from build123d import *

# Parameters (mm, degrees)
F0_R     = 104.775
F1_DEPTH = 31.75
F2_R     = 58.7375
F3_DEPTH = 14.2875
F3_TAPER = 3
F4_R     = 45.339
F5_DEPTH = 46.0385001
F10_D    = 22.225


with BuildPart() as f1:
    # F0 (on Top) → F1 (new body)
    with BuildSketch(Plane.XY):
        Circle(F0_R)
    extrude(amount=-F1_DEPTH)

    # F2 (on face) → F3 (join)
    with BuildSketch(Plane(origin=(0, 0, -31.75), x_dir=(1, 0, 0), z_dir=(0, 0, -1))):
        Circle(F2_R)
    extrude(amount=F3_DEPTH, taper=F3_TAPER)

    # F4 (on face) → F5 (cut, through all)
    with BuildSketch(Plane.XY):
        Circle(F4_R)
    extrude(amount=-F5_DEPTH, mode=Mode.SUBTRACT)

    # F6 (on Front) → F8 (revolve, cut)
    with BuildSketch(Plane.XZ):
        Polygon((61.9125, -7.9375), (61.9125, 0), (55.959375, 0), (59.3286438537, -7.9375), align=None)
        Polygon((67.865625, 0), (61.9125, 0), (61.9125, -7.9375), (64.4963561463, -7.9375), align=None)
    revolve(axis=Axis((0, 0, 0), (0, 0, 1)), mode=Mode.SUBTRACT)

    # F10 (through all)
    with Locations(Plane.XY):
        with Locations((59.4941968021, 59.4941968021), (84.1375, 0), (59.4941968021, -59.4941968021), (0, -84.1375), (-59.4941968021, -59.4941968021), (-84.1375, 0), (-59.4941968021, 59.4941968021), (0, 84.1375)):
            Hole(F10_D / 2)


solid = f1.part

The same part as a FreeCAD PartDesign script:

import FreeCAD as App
import Part
import Sketcher
from FreeCAD import Vector
Q = App.Units.Quantity

doc = App.newDocument("Part")
body = doc.addObject("PartDesign::Body", "Body")

# Sketch on XY plane
sketch1 = doc.addObject("Sketcher::SketchObject", "Sketch")
body.addObject(sketch1)
sketch1.AttachmentSupport = (doc.XY_Plane, [""])
sketch1.MapMode = "FlatFace"
sketch1.addGeometry(Part.Circle(Vector(0, 0, 0), Vector(0, 0, 1), 104.775), False)
sketch1.addConstraint([
    Sketcher.Constraint("Coincident", 0, 3, -1, 1),
    Sketcher.Constraint("Diameter", 0, Q("8.25 in")),
])
pad1 = doc.addObject("PartDesign::Pad", "Pad")
body.addObject(pad1)
pad1.Profile = sketch1
pad1.Length = Q("1.25 in")
pad1.Reversed = True

# Sketch on XY plane
sketch2 = doc.addObject("Sketcher::SketchObject", "Sketch001")
body.addObject(sketch2)
sketch2.AttachmentSupport = (doc.XY_Plane, [""])
sketch2.MapMode = "FlatFace"
sketch2.AttachmentOffset = App.Placement(Vector(0, 0, -1.25 * 25.4), App.Rotation())
sketch2.addGeometry(Part.Circle(Vector(0, 0, 0), Vector(0, 0, 1), 58.7375), False)
sketch2.addConstraint([
    Sketcher.Constraint("Coincident", 0, 3, -1, 1),
    Sketcher.Constraint("Diameter", 0, Q("4.625 in")),
])
pad2 = doc.addObject("PartDesign::Pad", "Pad001")
body.addObject(pad2)
pad2.Profile = sketch2
pad2.Length = Q("0.5625 in")
pad2.Reversed = True
pad2.TaperAngle = -3

# Sketch on XY plane
sketch3 = doc.addObject("Sketcher::SketchObject", "Sketch002")
body.addObject(sketch3)
sketch3.AttachmentSupport = (doc.XY_Plane, [""])
sketch3.MapMode = "FlatFace"
sketch3.addGeometry(Part.Circle(Vector(0, 0, 0), Vector(0, 0, 1), 45.339), False)
sketch3.addConstraint([
    Sketcher.Constraint("Coincident", 0, 3, -1, 1),
    Sketcher.Constraint("Diameter", 0, Q("3.57 in")),
])
pocket1 = doc.addObject("PartDesign::Pocket", "Pocket")
body.addObject(pocket1)
pocket1.Profile = sketch3
pocket1.Type = "ThroughAll"

# Sketch on XZ plane
sketch4 = doc.addObject("Sketcher::SketchObject", "Sketch003")
body.addObject(sketch4)
sketch4.AttachmentSupport = (doc.XZ_Plane, [""])
sketch4.MapMode = "FlatFace"
sketch4.addGeometry([
    Part.LineSegment(Vector(55.959375, 0, 0), Vector(59.328644, -7.9375, 0)),
    Part.LineSegment(Vector(59.328644, -7.9375, 0), Vector(64.496356, -7.9375, 0)),
    Part.LineSegment(Vector(64.496356, -7.9375, 0), Vector(67.865625, 0, 0)),
    Part.LineSegment(Vector(67.865625, 0, 0), Vector(55.959375, 0, 0)),
], False)
sketch4.addConstraint([
    Sketcher.Constraint("Coincident", 0, 2, 1, 1),
    Sketcher.Constraint("Coincident", 1, 2, 2, 1),
    Sketcher.Constraint("Coincident", 2, 2, 3, 1),
    Sketcher.Constraint("Coincident", 3, 2, 0, 1),
    Sketcher.Constraint("Horizontal", 1),
    Sketcher.Constraint("Horizontal", 3),
    Sketcher.Constraint("PointOnObject", 2, 2, -1),
    Sketcher.Constraint("Equal", 0, 2),
    Sketcher.Constraint("Angle", 0, Q("-67 deg")),
    Sketcher.Constraint("DistanceX", 3, 2, 3, 1, Q("0.46875 in")),
    Sketcher.Constraint("DistanceY", 0, 2, -1, 1, Q("0.3125 in")),
    Sketcher.Constraint("DistanceX", -1, 1, 2, 2, Q("2.671875 in")),
])
groove = doc.addObject("PartDesign::Groove", "Groove")
body.addObject(groove)
groove.Profile = sketch4
groove.ReferenceAxis = (sketch4, ["V_Axis"])
groove.Angle = 360

# Sketch on XY plane
sketch5 = doc.addObject("Sketcher::SketchObject", "Sketch004")
body.addObject(sketch5)
sketch5.AttachmentSupport = (doc.XY_Plane, [""])
sketch5.MapMode = "FlatFace"
sketch5.addGeometry([
    Part.Circle(Vector(59.494197, 59.494197, 0), Vector(0, 0, 1), 11.1125),  # 0
    Part.Circle(Vector(84.1375, 0, 0), Vector(0, 0, 1), 11.1125),  # 1
    Part.Circle(Vector(59.494197, -59.494197, 0), Vector(0, 0, 1), 11.1125),  # 2
    Part.Circle(Vector(0, -84.1375, 0), Vector(0, 0, 1), 11.1125),  # 3
    Part.Circle(Vector(-59.494197, -59.494197, 0), Vector(0, 0, 1), 11.1125),  # 4
    Part.Circle(Vector(-84.1375, 0, 0), Vector(0, 0, 1), 11.1125),  # 5
    Part.Circle(Vector(-59.494197, 59.494197, 0), Vector(0, 0, 1), 11.1125),  # 6
    Part.Circle(Vector(0, 84.1375, 0), Vector(0, 0, 1), 11.1125),  # 7
], False)
sketch5.addConstraint([
    Sketcher.Constraint("Equal", 0, 1),
    Sketcher.Constraint("Equal", 1, 2),
    Sketcher.Constraint("Equal", 2, 3),
    Sketcher.Constraint("Equal", 3, 4),
    Sketcher.Constraint("Equal", 4, 5),
    Sketcher.Constraint("Equal", 5, 6),
    Sketcher.Constraint("Equal", 6, 7),
    Sketcher.Constraint("Symmetric", 0, 3, 4, 3, -1, 1),
    Sketcher.Constraint("Symmetric", 1, 3, 5, 3, -1, 1),
    Sketcher.Constraint("Symmetric", 2, 3, 6, 3, -1, 1),
    Sketcher.Constraint("Symmetric", 3, 3, 7, 3, -1, 1),
    Sketcher.Constraint("Symmetric", 2, 3, 4, 3, -2),
    Sketcher.Constraint("PointOnObject", 1, 3, -1),
    Sketcher.Constraint("PointOnObject", 3, 3, -2),
    Sketcher.Constraint("Diameter", 0, Q("0.875 in")),
    Sketcher.Constraint("DistanceX", -1, 1, 1, 3, Q("3.3125 in")),
    Sketcher.Constraint("DistanceY", 3, 3, -1, 1, Q("3.3125 in")),
    Sketcher.Constraint("DistanceX", -1, 1, 0, 3, Q("59.494197 mm")),
    Sketcher.Constraint("DistanceY", -1, 1, 0, 3, Q("59.494197 mm")),
])
doc.recompute()
hole = doc.addObject("PartDesign::Hole", "Hole")
body.addObject(hole)
hole.Profile = sketch5
hole.ThreadType = "None"
hole.Diameter = Q("0.875 in")
hole.DepthType = "ThroughAll"

doc.recompute()
